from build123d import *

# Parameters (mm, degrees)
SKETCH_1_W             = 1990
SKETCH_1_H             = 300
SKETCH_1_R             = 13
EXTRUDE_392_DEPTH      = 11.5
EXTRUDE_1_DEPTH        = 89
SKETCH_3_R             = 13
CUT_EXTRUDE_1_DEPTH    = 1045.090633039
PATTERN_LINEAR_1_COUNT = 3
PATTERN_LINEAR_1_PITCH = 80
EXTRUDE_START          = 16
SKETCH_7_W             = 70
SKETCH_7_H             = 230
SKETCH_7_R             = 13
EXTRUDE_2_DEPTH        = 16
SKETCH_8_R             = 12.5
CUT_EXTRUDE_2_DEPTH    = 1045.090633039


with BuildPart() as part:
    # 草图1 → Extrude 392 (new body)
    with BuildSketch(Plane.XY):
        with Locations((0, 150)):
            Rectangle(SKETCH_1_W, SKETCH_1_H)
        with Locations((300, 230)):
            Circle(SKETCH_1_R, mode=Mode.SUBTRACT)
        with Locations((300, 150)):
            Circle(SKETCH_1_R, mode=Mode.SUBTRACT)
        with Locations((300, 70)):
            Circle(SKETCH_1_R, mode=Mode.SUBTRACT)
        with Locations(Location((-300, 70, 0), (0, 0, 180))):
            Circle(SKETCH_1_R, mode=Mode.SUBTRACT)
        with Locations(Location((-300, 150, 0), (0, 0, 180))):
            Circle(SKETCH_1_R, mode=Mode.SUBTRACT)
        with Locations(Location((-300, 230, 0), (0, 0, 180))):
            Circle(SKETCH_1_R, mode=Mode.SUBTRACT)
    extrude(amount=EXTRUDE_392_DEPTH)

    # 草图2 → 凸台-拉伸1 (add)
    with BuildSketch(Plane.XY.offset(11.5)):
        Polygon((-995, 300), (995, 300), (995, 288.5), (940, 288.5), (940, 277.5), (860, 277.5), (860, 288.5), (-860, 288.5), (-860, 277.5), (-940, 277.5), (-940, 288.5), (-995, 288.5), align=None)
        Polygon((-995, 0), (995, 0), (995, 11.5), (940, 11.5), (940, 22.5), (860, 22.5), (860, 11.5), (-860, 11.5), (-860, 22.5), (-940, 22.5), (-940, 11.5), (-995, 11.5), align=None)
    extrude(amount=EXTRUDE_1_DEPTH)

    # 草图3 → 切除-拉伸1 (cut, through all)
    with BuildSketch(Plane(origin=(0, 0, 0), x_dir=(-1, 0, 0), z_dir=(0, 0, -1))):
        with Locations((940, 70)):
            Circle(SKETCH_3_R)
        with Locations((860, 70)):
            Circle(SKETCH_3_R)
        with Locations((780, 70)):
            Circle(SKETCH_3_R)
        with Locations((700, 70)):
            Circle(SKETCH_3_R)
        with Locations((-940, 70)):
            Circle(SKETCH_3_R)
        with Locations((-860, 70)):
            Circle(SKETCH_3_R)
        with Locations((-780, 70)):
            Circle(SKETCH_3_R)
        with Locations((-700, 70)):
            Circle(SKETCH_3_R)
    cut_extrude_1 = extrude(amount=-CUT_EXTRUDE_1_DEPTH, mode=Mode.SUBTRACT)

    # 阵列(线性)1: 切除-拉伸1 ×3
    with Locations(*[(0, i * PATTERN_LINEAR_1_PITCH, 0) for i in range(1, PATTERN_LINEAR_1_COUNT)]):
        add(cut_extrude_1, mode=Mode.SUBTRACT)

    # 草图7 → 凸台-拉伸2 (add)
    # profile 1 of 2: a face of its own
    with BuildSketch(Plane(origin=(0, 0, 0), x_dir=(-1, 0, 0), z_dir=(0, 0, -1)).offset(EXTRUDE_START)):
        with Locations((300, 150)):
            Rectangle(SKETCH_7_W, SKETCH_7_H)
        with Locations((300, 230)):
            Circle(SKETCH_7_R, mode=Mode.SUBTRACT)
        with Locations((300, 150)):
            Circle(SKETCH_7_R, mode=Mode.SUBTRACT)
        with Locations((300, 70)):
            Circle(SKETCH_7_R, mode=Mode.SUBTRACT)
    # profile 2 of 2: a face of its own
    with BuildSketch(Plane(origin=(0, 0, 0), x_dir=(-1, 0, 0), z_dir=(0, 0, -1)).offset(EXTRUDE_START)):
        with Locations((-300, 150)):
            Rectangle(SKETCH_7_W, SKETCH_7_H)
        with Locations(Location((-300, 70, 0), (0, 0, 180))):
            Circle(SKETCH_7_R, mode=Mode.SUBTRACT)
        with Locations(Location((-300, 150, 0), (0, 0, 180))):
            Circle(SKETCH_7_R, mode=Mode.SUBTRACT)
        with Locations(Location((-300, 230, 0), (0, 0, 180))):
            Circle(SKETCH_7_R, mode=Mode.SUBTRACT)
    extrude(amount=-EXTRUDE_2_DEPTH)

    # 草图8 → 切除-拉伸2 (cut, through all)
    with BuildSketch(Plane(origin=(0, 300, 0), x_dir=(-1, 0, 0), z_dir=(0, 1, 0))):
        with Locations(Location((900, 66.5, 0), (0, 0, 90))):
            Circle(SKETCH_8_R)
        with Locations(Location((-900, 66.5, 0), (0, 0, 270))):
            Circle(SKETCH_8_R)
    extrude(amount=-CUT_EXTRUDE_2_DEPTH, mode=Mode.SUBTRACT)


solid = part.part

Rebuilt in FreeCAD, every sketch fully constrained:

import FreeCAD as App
import Part
import Sketcher
from FreeCAD import Vector

doc = App.newDocument("Part")
body = doc.addObject("PartDesign::Body", "Body")

sketch1 = body.newObject("Sketcher::SketchObject", "Sketch")
sketch1.AttachmentSupport = (doc.getObject("XY_Plane"), [""])
sketch1.MapMode = "FlatFace"
sketch1.addGeometry([
    Part.LineSegment(Vector(-995, 300, 0), Vector(-995, 0, 0)),
    Part.LineSegment(Vector(-995, 0, 0), Vector(995, 0, 0)),
    Part.LineSegment(Vector(995, 0, 0), Vector(995, 300, 0)),
    Part.LineSegment(Vector(995, 300, 0), Vector(-995, 300, 0)),
    Part.Circle(Vector(-300, 70, 0), Vector(0, 0, 1), 13),
    Part.Circle(Vector(300, 70, 0), Vector(0, 0, 1), 13),
    Part.Circle(Vector(-300, 150, 0), Vector(0, 0, 1), 13),
    Part.Circle(Vector(-300, 230, 0), Vector(0, 0, 1), 13),
    Part.Circle(Vector(300, 150, 0), Vector(0, 0, 1), 13),
    Part.Circle(Vector(300, 230, 0), Vector(0, 0, 1), 13),
], False)
sketch1.addConstraint([
    Sketcher.Constraint("Coincident", 0, 2, 1, 1),
    Sketcher.Constraint("Coincident", 1, 2, 2, 1),
    Sketcher.Constraint("Coincident", 2, 2, 3, 1),
    Sketcher.Constraint("Coincident", 3, 2, 0, 1),
    Sketcher.Constraint("Vertical", 0),
    Sketcher.Constraint("Horizontal", 1),
    Sketcher.Constraint("Vertical", 2),
    Sketcher.Constraint("Horizontal", 3),
    Sketcher.Constraint("Equal", 4, 5),
    Sketcher.Constraint("Equal", 5, 6),
    Sketcher.Constraint("Equal", 6, 7),
    Sketcher.Constraint("Equal", 7, 8),
    Sketcher.Constraint("Equal", 8, 9),
    Sketcher.Constraint("Symmetric", 0, 2, 1, 2, -1, 1),
    Sketcher.Constraint("Symmetric", 4, 3, 5, 3, -2),
    Sketcher.Constraint("Symmetric", 6, 3, 8, 3, -2),
    Sketcher.Constraint("Symmetric", 7, 3, 9, 3, -2),
    Sketcher.Constraint("Vertical", 4, 3, 6, 3),
    Sketcher.Constraint("Vertical", 6, 3, 7, 3),
    Sketcher.Constraint("Diameter", 4, 26.0),
    Sketcher.Constraint("DistanceX", 1, 1, 1, 2, 1990.0),
    Sketcher.Constraint("DistanceY", 0, 2, 0, 1, 300.0),
    Sketcher.Constraint("DistanceX", 4, 3, -1, 1, 300.0),
    Sketcher.Constraint("DistanceY", -1, 1, 4, 3, 70.0),
    Sketcher.Constraint("DistanceY", -1, 1, 6, 3, 150.0),
    Sketcher.Constraint("DistanceY", -1, 1, 7, 3, 230.0),
])
pad1 = body.newObject("PartDesign::Pad", "Pad")
pad1.Profile = sketch1
pad1.Length = 11.5

sketch2 = body.newObject("Sketcher::SketchObject", "Sketch001")
sketch2.AttachmentSupport = (doc.getObject("XY_Plane"), [""])
sketch2.MapMode = "FlatFace"
sketch2.AttachmentOffset = App.Placement(Vector(0, 0, 11.5), App.Rotation())
sketch2.addGeometry([
    Part.LineSegment(Vector(995, 300, 0), Vector(-995, 300, 0)),
    Part.LineSegment(Vector(-995, 300, 0), Vector(-995, 288, 0)),
    Part.LineSegment(Vector(-995, 288, 0), Vector(-940, 288, 0)),
    Part.LineSegment(Vector(-940, 288, 0), Vector(-940, 278, 0)),
    Part.LineSegment(Vector(-940, 278, 0), Vector(-860, 278, 0)),
    Part.LineSegment(Vector(-860, 278, 0), Vector(-860, 288, 0)),
    Part.LineSegment(Vector(-860, 288, 0), Vector(860, 288, 0)),
    Part.LineSegment(Vector(860, 288, 0), Vector(860, 278, 0)),
    Part.LineSegment(Vector(860, 278, 0), Vector(940, 278, 0)),
    Part.LineSegment(Vector(940, 278, 0), Vector(940, 288, 0)),
    Part.LineSegment(Vector(940, 288, 0), Vector(995, 288, 0)),
    Part.LineSegment(Vector(995, 288, 0), Vector(995, 300, 0)),
    Part.LineSegment(Vector(-995, 0, 0), Vector(995, 0, 0)),
    Part.LineSegment(Vector(995, 0, 0), Vector(995, 12, 0)),
    Part.LineSegment(Vector(995, 12, 0), Vector(940, 12, 0)),
    Part.LineSegment(Vector(940, 12, 0), Vector(940, 22, 0)),
    Part.LineSegment(Vector(940, 22, 0), Vector(860, 22, 0)),
    Part.LineSegment(Vector(860, 22, 0), Vector(860, 12, 0)),
    Part.LineSegment(Vector(860, 12, 0), Vector(-860, 12, 0)),
    Part.LineSegment(Vector(-860, 12, 0), Vector(-860, 22, 0)),
    Part.LineSegment(Vector(-860, 22, 0), Vector(-940, 22, 0)),
    Part.LineSegment(Vector(-940, 22, 0), Vector(-940, 12, 0)),
    Part.LineSegment(Vector(-940, 12, 0), Vector(-995, 12, 0)),
    Part.LineSegment(Vector(-995, 12, 0), Vector(-995, 0, 0)),
], False)
sketch2.addConstraint([
    Sketcher.Constraint("Coincident", 0, 2, 1, 1),
    Sketcher.Constraint("Coincident", 1, 2, 2, 1),
    Sketcher.Constraint("Coincident", 2, 2, 3, 1),
    Sketcher.Constraint("Coincident", 3, 2, 4, 1),
    Sketcher.Constraint("Coincident", 4, 2, 5, 1),
    Sketcher.Constraint("Coincident", 5, 2, 6, 1),
    Sketcher.Constraint("Coincident", 6, 2, 7, 1),
    Sketcher.Constraint("Coincident", 7, 2, 8, 1),
    Sketcher.Constraint("Coincident", 8, 2, 9, 1),
    Sketcher.Constraint("Coincident", 9, 2, 10, 1),
    Sketcher.Constraint("Coincident", 10, 2, 11, 1),
    Sketcher.Constraint("Coincident", 11, 2, 0, 1),
    Sketcher.Constraint("Coincident", 12, 2, 13, 1),
    Sketcher.Constraint("Coincident", 13, 2, 14, 1),
    Sketcher.Constraint("Coincident", 14, 2, 15, 1),
    Sketcher.Constraint("Coincident", 15, 2, 16, 1),
    Sketcher.Constraint("Coincident", 16, 2, 17, 1),
    Sketcher.Constraint("Coincident", 17, 2, 18, 1),
    Sketcher.Constraint("Coincident", 18, 2, 19, 1),
    Sketcher.Constraint("Coincident", 19, 2, 20, 1),
    Sketcher.Constraint("Coincident", 20, 2, 21, 1),
    Sketcher.Constraint("Coincident", 21, 2, 22, 1),
    Sketcher.Constraint("Coincident", 22, 2, 23, 1),
    Sketcher.Constraint("Coincident", 23, 2, 12, 1),
    Sketcher.Constraint("Horizontal", 0),
    Sketcher.Constraint("Vertical", 1),
    Sketcher.Constraint("Horizontal", 2),
    Sketcher.Constraint("Vertical", 3),
    Sketcher.Constraint("Horizontal", 4),
    Sketcher.Constraint("Vertical", 5),
    Sketcher.Constraint("Horizontal", 6),
    Sketcher.Constraint("Vertical", 7),
    Sketcher.Constraint("Horizontal", 8),
    Sketcher.Constraint("Vertical", 9),
    Sketcher.Constraint("Horizontal", 10),
    Sketcher.Constraint("Vertical", 11),
    Sketcher.Constraint("Horizontal", 12),
    Sketcher.Constraint("Vertical", 13),
    Sketcher.Constraint("Horizontal", 14),
    Sketcher.Constraint("Vertical", 15),
    Sketcher.Constraint("Horizontal", 16),
    Sketcher.Constraint("Vertical", 17),
    Sketcher.Constraint("Horizontal", 18),
    Sketcher.Constraint("Vertical", 19),
    Sketcher.Constraint("Horizontal", 20),
    Sketcher.Constraint("Vertical", 21),
    Sketcher.Constraint("Horizontal", 22),
    Sketcher.Constraint("Vertical", 23),
    Sketcher.Constraint("Symmetric", 12, 2, 23, 2, -1, 1),
    Sketcher.Constraint("Symmetric", 4, 2, 7, 2, -2),
    Sketcher.Constraint("Symmetric", 2, 2, 9, 2, -2),
    Sketcher.Constraint("Symmetric", 16, 2, 19, 2, -2),
    Sketcher.Constraint("Symmetric", 14, 2, 21, 2, -2),
    Sketcher.Constraint("Horizontal", 2, 2, 5, 2),
    Sketcher.Constraint("Horizontal", 14, 2, 17, 2),
    Sketcher.Constraint("Vertical", 11, 2, 12, 2),
    Sketcher.Constraint("Vertical", 9, 2, 14, 2),
    Sketcher.Constraint("Vertical", 7, 2, 16, 2),
    Sketcher.Constraint("Vertical", 1, 2, 22, 2),
    Sketcher.Constraint("Equal", 11, 13),
    Sketcher.Constraint("Equal", 9, 15),
    Sketcher.Constraint("DistanceX", 0, 2, 0, 1, 1990.0),
    Sketcher.Constraint("DistanceX", 2, 1, 2, 2, 55.0),
    Sketcher.Constraint("DistanceX", 4, 1, 4, 2, 80.0),
    Sketcher.Constraint("DistanceY", 3, 2, 3, 1, 11.0),
    Sketcher.Constraint("DistanceY", 1, 2, 1, 1, 11.5),
    Sketcher.Constraint("DistanceY", -1, 1, 0, 2, 300.0),
])
pad2 = body.newObject("PartDesign::Pad", "Pad001")
pad2.Profile = sketch2
pad2.Length = 89

sketch3 = body.newObject("Sketcher::SketchObject", "Sketch002")
sketch3.AttachmentSupport = (doc.getObject("XY_Plane"), [""])
sketch3.MapMode = "FlatFace"
sketch3.addGeometry([
    Part.Circle(Vector(-940, 70, 0), Vector(0, 0, 1), 13),
    Part.Circle(Vector(-860, 70, 0), Vector(0, 0, 1), 13),
    Part.Circle(Vector(-780, 70, 0), Vector(0, 0, 1), 13),
    Part.Circle(Vector(-700, 70, 0), Vector(0, 0, 1), 13),
    Part.Circle(Vector(940, 70, 0), Vector(0, 0, 1), 13),
    Part.Circle(Vector(860, 70, 0), Vector(0, 0, 1), 13),
    Part.Circle(Vector(780, 70, 0), Vector(0, 0, 1), 13),
    Part.Circle(Vector(700, 70, 0), Vector(0, 0, 1), 13),
], False)
sketch3.addConstraint([
    Sketcher.Constraint("Equal", 0, 1),
    Sketcher.Constraint("Equal", 1, 2),
    Sketcher.Constraint("Equal", 2, 3),
    Sketcher.Constraint("Equal", 3, 4),
    Sketcher.Constraint("Equal", 4, 5),
    Sketcher.Constraint("Equal", 5, 6),
    Sketcher.Constraint("Equal", 6, 7),
    Sketcher.Constraint("Symmetric", 0, 3, 4, 3, -2),
    Sketcher.Constraint("Symmetric", 1, 3, 5, 3, -2),
    Sketcher.Constraint("Symmetric", 2, 3, 6, 3, -2),
    Sketcher.Constraint("Symmetric", 3, 3, 7, 3, -2),
    Sketcher.Constraint("Horizontal", 0, 3, 1, 3),
    Sketcher.Constraint("Horizontal", 1, 3, 2, 3),
    Sketcher.Constraint("Horizontal", 2, 3, 3, 3),
    Sketcher.Constraint("Diameter", 0, 26.0),
    Sketcher.Constraint("DistanceX", 0, 3, -1, 1, 940.0),
    Sketcher.Constraint("DistanceY", -1, 1, 0, 3, 70.0),
    Sketcher.Constraint("DistanceX", 1, 3, -1, 1, 860.0),
    Sketcher.Constraint("DistanceX", 2, 3, -1, 1, 780.0),
    Sketcher.Constraint("DistanceX", 3, 3, -1, 1, 700.0),
])
pocket1 = body.newObject("PartDesign::Pocket", "Pocket")
pocket1.Profile = sketch3
pocket1.Type = "ThroughAll"
pocket1.Reversed = True
doc.recompute()

linearpattern = body.newObject("PartDesign::LinearPattern", "LinearPattern")
linearpattern.Originals = [pocket1]
linearpattern.Direction = (doc.getObject("Y_Axis"), [""])
linearpattern.Mode = "offset"
linearpattern.Offset = 80
linearpattern.Occurrences = 3
body.Tip = linearpattern

sketch4 = body.newObject("Sketcher::SketchObject", "Sketch003")
sketch4.AttachmentSupport = (doc.getObject("XY_Plane"), [""])
sketch4.MapMode = "FlatFace"
sketch4.AttachmentOffset = App.Placement(Vector(0, 0, -16), App.Rotation())
sketch4.addGeometry([
    Part.LineSegment(Vector(-265, 265, 0), Vector(-265, 35, 0)),
    Part.LineSegment(Vector(-265, 35, 0), Vector(-335, 35, 0)),
    Part.LineSegment(Vector(-335, 35, 0), Vector(-335, 265, 0)),
    Part.LineSegment(Vector(-335, 265, 0), Vector(-265, 265, 0)),
    Part.Circle(Vector(-300, 70, 0), Vector(0, 0, 1), 13),
    Part.Circle(Vector(-300, 150, 0), Vector(0, 0, 1), 13),
    Part.Circle(Vector(-300, 230, 0), Vector(0, 0, 1), 13),
    Part.LineSegment(Vector(335, 265, 0), Vector(335, 35, 0)),
    Part.LineSegment(Vector(335, 35, 0), Vector(265, 35, 0)),
    Part.LineSegment(Vector(265, 35, 0), Vector(265, 265, 0)),
    Part.LineSegment(Vector(265, 265, 0), Vector(335, 265, 0)),
    Part.Circle(Vector(300, 70, 0), Vector(0, 0, 1), 13),
    Part.Circle(Vector(300, 150, 0), Vector(0, 0, 1), 13),
    Part.Circle(Vector(300, 230, 0), Vector(0, 0, 1), 13),
], False)
sketch4.addConstraint([
    Sketcher.Constraint("Coincident", 0, 2, 1, 1),
    Sketcher.Constraint("Coincident", 1, 2, 2, 1),
    Sketcher.Constraint("Coincident", 2, 2, 3, 1),
    Sketcher.Constraint("Coincident", 3, 2, 0, 1),
    Sketcher.Constraint("Coincident", 7, 2, 8, 1),
    Sketcher.Constraint("Coincident", 8, 2, 9, 1),
    Sketcher.Constraint("Coincident", 9, 2, 10, 1),
    Sketcher.Constraint("Coincident", 10, 2, 7, 1),
    Sketcher.Constraint("Vertical", 0),
    Sketcher.Constraint("Horizontal", 1),
    Sketcher.Constraint("Vertical", 2),
    Sketcher.Constraint("Horizontal", 3),
    Sketcher.Constraint("Vertical", 7),
    Sketcher.Constraint("Horizontal", 8),
    Sketcher.Constraint("Vertical", 9),
    Sketcher.Constraint("Horizontal", 10),
    Sketcher.Constraint("Equal", 4, 5),
    Sketcher.Constraint("Equal", 5, 6),
    Sketcher.Constraint("Equal", 6, 11),
    Sketcher.Constraint("Equal", 11, 12),
    Sketcher.Constraint("Equal", 12, 13),
    Sketcher.Constraint("Symmetric", 4, 3, 11, 3, -2),
    Sketcher.Constraint("Symmetric", 5, 3, 12, 3, -2),
    Sketcher.Constraint("Symmetric", 6, 3, 13, 3, -2),
    Sketcher.Constraint("Symmetric", 1, 2, 7, 2, -2),
    Sketcher.Constraint("Symmetric", 3, 2, 9, 2, -2),
    Sketcher.Constraint("Vertical", 4, 3, 5, 3),
    Sketcher.Constraint("Vertical", 5, 3, 6, 3),
    Sketcher.Constraint("Diameter", 4, 26.0),
    Sketcher.Constraint("DistanceX", 1, 2, 1, 1, 70.0),
    Sketcher.Constraint("DistanceY", 0, 2, 0, 1, 230.0),
    Sketcher.Constraint("DistanceX", 4, 3, -1, 1, 300.0),
    Sketcher.Constraint("DistanceY", -1, 1, 4, 3, 70.0),
    Sketcher.Constraint("DistanceY", -1, 1, 5, 3, 150.0),
    Sketcher.Constraint("DistanceY", -1, 1, 6, 3, 230.0),
    Sketcher.Constraint("DistanceX", 0, 2, -1, 1, 265.0),
    Sketcher.Constraint("DistanceY", -1, 1, 0, 2, 35.0),
])
pad3 = body.newObject("PartDesign::Pad", "Pad002")
pad3.Profile = sketch4
pad3.Length = 16

sketch5 = body.newObject("Sketcher::SketchObject", "Sketch004")
sketch5.AttachmentSupport = (doc.getObject("XZ_Plane"), [""])
sketch5.MapMode = "FlatFace"
sketch5.AttachmentOffset = App.Placement(Vector(0, 0, -300), App.Rotation())
sketch5.addGeometry([
    Part.Circle(Vector(-900, 66, 0), Vector(0, 0, 1), 12),
    Part.Circle(Vector(900, 66, 0), Vector(0, 0, 1), 12),
], False)
sketch5.addConstraint([
    Sketcher.Constraint("Equal", 0, 1),
    Sketcher.Constraint("Symmetric", 0, 3, 1, 3, -2),
    Sketcher.Constraint("Diameter", 0, 25.0),
    Sketcher.Constraint("DistanceX", 0, 3, -1, 1, 900.0),
    Sketcher.Constraint("DistanceY", -1, 1, 0, 3, 66.5),
])
pocket2 = body.newObject("PartDesign::Pocket", "Pocket001")
pocket2.Profile = sketch5
pocket2.Type = "ThroughAll"
pocket2.Reversed = True

doc.recompute()
